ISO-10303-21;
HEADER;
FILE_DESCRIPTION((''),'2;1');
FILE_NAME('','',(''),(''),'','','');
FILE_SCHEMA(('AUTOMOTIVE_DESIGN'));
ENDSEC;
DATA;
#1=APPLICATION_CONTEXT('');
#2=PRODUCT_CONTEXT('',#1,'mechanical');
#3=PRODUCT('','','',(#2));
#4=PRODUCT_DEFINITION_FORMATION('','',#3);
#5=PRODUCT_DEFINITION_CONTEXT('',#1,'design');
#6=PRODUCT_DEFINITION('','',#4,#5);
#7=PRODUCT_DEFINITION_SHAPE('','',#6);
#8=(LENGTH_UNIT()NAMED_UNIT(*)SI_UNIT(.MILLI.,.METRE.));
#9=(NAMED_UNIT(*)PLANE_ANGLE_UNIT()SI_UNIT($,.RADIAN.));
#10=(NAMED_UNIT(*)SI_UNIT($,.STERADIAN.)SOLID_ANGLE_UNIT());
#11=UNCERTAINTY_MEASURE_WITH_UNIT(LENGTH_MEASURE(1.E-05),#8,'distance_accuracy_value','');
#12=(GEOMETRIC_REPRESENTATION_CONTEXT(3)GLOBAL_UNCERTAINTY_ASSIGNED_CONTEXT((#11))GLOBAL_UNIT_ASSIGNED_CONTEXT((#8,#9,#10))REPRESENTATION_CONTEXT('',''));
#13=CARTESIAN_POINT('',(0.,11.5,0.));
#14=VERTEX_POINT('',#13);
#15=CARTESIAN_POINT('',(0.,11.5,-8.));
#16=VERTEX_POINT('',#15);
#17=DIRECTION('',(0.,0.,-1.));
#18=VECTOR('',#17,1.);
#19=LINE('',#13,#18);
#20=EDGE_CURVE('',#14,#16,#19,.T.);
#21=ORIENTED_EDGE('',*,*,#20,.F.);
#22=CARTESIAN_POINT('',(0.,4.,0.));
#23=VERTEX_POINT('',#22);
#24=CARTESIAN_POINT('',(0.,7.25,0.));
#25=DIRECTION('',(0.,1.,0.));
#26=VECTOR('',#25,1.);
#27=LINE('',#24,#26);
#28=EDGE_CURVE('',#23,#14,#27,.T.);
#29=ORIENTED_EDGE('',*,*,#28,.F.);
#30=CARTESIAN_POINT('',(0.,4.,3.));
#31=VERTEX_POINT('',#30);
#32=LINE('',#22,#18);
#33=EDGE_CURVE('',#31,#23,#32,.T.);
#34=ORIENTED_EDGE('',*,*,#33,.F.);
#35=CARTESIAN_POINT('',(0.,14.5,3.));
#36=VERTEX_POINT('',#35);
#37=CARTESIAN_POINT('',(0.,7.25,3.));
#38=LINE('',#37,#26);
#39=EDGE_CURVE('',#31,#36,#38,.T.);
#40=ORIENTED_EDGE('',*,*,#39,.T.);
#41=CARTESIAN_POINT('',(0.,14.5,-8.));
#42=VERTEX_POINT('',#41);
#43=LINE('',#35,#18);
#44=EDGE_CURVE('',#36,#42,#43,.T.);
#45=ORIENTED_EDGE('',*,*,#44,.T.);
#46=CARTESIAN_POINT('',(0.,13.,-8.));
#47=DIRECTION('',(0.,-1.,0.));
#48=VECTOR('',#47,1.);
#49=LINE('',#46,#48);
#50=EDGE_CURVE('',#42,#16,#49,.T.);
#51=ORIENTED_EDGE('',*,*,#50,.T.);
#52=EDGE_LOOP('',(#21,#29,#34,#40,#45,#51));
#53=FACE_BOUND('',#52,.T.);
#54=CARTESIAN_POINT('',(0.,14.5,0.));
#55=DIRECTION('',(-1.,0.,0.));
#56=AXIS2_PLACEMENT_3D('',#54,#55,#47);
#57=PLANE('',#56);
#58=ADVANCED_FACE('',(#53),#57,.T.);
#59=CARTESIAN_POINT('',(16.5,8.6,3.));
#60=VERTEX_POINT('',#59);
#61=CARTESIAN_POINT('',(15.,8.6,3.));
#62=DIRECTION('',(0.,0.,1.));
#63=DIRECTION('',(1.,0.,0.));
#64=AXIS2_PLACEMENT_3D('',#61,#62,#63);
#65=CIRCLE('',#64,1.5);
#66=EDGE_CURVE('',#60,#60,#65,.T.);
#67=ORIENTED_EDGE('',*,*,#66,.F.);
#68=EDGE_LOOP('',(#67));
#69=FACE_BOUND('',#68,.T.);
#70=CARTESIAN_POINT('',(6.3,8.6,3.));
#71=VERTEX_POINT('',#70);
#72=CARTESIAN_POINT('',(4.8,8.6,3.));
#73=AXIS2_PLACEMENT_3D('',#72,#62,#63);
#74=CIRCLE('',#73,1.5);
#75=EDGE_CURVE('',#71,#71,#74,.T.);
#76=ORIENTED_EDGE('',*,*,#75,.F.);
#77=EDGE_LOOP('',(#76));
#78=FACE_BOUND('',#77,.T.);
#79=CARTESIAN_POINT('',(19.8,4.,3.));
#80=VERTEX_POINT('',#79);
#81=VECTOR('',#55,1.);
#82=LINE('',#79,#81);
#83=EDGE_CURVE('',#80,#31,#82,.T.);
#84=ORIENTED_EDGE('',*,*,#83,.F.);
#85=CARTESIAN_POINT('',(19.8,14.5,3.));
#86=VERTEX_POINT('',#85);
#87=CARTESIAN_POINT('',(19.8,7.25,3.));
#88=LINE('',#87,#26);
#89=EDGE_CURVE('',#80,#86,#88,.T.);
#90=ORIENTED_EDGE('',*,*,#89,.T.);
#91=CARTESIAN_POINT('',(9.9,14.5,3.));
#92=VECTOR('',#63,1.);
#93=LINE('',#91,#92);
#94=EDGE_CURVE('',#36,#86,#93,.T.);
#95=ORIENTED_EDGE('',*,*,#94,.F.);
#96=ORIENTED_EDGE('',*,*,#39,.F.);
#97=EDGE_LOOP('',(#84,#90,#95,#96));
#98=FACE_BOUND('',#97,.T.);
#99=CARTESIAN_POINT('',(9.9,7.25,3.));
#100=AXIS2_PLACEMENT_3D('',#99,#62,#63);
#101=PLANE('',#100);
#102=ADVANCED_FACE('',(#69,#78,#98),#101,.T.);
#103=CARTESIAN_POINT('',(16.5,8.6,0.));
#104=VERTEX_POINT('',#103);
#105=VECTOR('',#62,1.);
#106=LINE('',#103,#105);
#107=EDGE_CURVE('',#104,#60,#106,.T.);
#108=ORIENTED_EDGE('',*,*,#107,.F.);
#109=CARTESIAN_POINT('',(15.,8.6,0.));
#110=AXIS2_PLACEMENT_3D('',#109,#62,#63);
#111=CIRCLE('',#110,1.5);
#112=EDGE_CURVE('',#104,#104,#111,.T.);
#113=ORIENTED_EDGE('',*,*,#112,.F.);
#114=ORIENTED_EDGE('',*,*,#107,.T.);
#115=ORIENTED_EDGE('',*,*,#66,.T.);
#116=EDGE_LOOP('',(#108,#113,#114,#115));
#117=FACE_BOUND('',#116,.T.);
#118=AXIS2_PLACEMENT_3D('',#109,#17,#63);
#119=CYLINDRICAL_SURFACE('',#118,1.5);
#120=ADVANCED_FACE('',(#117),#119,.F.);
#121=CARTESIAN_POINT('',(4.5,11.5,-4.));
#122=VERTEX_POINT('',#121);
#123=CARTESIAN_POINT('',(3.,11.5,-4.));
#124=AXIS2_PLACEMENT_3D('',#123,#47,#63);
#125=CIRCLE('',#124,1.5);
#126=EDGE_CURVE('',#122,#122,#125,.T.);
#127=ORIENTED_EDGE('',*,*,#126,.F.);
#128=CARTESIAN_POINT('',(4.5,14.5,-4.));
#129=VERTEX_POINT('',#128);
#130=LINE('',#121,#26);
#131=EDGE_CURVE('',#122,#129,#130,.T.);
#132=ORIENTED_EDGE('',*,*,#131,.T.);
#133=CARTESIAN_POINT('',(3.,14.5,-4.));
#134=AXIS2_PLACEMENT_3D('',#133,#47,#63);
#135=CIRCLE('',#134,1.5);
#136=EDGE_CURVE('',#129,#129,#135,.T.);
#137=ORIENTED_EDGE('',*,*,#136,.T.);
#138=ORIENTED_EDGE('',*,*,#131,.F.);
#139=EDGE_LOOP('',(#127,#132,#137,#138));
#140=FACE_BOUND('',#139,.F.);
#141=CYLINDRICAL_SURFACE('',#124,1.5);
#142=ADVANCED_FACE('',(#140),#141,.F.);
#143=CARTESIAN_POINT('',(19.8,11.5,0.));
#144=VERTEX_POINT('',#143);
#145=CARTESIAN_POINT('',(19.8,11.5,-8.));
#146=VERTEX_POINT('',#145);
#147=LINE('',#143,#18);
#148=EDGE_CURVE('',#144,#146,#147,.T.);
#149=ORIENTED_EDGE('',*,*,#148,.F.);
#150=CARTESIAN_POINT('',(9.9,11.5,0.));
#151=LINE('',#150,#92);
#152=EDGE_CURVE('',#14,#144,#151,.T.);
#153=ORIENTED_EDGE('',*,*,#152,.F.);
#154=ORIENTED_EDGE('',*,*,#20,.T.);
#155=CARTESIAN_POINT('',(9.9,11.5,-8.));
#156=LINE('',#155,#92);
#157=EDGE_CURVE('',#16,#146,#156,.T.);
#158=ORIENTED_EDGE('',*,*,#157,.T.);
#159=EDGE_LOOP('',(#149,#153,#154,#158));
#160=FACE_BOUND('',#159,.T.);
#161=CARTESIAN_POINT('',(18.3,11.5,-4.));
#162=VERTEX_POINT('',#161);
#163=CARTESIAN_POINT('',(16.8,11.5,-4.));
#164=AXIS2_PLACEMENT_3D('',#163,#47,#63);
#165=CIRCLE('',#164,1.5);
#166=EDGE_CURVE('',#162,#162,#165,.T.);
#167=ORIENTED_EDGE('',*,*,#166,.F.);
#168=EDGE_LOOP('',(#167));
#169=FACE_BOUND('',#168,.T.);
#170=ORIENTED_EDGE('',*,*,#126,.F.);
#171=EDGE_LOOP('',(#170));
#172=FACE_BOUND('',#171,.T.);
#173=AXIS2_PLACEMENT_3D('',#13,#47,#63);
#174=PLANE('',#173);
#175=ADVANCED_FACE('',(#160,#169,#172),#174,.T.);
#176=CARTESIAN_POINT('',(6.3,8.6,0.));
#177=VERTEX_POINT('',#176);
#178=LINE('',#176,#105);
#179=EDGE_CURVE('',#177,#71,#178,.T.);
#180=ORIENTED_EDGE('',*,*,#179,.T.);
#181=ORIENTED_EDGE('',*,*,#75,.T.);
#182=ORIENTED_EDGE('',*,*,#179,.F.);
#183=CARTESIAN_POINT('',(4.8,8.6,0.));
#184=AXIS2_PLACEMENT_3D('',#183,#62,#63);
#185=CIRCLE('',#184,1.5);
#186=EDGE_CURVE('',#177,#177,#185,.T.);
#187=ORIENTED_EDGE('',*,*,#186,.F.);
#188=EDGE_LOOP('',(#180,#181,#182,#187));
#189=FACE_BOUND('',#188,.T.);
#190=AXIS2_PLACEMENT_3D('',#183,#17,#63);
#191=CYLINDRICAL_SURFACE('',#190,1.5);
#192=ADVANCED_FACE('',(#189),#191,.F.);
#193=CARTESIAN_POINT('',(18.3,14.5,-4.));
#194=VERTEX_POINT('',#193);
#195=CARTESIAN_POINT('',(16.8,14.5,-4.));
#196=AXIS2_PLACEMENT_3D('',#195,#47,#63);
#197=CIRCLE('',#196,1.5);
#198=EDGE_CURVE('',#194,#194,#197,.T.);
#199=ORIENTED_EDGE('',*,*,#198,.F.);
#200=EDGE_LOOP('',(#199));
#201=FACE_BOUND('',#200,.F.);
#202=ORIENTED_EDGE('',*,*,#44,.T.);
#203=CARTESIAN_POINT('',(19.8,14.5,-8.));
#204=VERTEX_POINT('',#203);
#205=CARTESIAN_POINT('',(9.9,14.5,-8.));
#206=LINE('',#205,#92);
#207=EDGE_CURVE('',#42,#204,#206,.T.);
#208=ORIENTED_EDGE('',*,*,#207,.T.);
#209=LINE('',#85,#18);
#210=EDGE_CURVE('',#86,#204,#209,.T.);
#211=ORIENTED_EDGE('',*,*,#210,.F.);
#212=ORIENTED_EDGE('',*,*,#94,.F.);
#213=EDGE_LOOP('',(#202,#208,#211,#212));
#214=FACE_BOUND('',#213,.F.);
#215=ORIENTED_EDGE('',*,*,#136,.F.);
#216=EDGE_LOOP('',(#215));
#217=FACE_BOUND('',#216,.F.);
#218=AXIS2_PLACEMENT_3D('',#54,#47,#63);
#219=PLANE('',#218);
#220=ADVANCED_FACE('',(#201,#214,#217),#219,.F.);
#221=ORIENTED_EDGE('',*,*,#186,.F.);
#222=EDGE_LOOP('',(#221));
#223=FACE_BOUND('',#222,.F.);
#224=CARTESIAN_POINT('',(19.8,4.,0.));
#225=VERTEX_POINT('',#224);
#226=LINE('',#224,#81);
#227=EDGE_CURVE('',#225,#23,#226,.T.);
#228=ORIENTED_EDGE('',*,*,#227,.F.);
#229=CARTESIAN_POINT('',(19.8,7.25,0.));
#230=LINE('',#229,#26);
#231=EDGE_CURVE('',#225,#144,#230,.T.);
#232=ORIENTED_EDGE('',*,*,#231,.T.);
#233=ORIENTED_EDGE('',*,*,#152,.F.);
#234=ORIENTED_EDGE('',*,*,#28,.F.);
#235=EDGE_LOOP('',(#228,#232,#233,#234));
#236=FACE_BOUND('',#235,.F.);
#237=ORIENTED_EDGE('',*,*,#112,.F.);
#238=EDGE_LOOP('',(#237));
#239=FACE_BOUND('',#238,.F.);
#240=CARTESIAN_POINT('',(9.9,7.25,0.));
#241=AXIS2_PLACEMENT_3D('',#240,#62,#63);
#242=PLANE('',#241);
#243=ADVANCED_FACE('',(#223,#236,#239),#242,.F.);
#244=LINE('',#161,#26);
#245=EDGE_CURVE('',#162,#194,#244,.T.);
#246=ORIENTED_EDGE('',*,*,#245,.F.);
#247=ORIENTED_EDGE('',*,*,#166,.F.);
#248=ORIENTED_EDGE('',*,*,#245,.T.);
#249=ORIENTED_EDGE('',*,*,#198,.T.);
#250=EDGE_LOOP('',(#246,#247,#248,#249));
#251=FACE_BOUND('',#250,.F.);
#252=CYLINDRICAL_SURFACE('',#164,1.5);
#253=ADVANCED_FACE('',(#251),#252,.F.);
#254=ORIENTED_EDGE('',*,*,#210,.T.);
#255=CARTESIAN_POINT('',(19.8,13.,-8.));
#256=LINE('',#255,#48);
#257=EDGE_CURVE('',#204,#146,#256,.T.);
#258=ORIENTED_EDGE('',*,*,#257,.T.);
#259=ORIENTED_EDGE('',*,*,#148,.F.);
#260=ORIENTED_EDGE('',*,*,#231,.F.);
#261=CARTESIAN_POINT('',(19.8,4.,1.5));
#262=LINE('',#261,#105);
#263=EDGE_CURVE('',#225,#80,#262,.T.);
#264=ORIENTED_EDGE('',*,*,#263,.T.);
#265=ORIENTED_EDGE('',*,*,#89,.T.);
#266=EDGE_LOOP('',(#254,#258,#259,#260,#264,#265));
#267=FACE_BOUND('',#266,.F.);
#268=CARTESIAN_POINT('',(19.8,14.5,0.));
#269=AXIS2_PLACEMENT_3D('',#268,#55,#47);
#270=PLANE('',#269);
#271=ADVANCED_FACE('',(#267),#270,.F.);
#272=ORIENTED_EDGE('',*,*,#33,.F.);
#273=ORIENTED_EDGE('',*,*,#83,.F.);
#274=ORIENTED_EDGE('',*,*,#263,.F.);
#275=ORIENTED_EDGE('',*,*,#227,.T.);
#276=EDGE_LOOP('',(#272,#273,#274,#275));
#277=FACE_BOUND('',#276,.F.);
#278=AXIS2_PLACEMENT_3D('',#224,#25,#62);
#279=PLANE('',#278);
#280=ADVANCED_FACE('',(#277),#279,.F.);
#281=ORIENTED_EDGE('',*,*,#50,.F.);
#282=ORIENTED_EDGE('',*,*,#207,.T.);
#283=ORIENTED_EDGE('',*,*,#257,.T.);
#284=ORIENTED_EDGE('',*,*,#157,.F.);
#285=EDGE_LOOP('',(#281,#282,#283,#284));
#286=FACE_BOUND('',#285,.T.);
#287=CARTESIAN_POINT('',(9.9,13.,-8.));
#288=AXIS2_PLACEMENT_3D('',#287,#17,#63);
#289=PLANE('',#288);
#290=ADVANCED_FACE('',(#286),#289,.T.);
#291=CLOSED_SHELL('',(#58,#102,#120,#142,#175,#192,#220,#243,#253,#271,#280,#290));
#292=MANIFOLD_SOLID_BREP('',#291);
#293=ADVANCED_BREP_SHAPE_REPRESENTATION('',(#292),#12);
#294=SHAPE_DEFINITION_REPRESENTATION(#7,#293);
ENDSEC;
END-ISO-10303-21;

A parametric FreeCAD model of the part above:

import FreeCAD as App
import Part
import Sketcher
from FreeCAD import Vector


def add_polygon(sketch, points):
    """Adds a closed chain of lines whose ends are joined by coincident constraints."""
    first, n = sketch.GeometryCount, len(points)
    for a, b in zip(points, points[1:] + points[:1]):
        sketch.addGeometry(Part.LineSegment(App.Vector(*a, 0), App.Vector(*b, 0)), False)
    for i in range(n):
        sketch.addConstraint(Sketcher.Constraint("Coincident", first + i, 2, first + (i + 1) % n, 1))

doc = App.newDocument("Part")
body = doc.addObject("PartDesign::Body", "Body")

# Sketch on XY plane
sketch1 = doc.addObject("Sketcher::SketchObject", "Sketch")
body.addObject(sketch1)
sketch1.AttachmentSupport = (doc.XY_Plane, [""])
sketch1.MapMode = "FlatFace"
add_polygon(sketch1, [(0, 14.5), (0, 0), (19.8, 0), (19.8, 14.5)])  # lines 0-3
sketch1.addGeometry(Part.Circle(Vector(4.8, 8.6, 0), Vector(0, 0, 1), 1.5), False)  # 4
sketch1.addGeometry(Part.Circle(Vector(15, 8.6, 0), Vector(0, 0, 1), 1.5), False)  # 5
sketch1.addConstraint(Sketcher.Constraint("Vertical", 0))
sketch1.addConstraint(Sketcher.Constraint("Horizontal", 1))
sketch1.addConstraint(Sketcher.Constraint("Vertical", 2))
sketch1.addConstraint(Sketcher.Constraint("Horizontal", 3))
sketch1.addConstraint(Sketcher.Constraint("Coincident", 0, 2, -1, 1))
sketch1.addConstraint(Sketcher.Constraint("Equal", 4, 5))
sketch1.addConstraint(Sketcher.Constraint("Horizontal", 4, 3, 5, 3))
sketch1.addConstraint(Sketcher.Constraint("Diameter", 4, 3.0))
sketch1.addConstraint(Sketcher.Constraint("DistanceX", 1, 1, 1, 2, 19.8))
sketch1.addConstraint(Sketcher.Constraint("DistanceY", 0, 2, 0, 1, 14.5))
sketch1.addConstraint(Sketcher.Constraint("DistanceX", -1, 1, 5, 3, 15.0))
sketch1.addConstraint(Sketcher.Constraint("DistanceX", 4, 3, 1, 2, 15.0))
sketch1.addConstraint(Sketcher.Constraint("DistanceY", -1, 1, 4, 3, 8.6))
pad1 = doc.addObject("PartDesign::Pad", "Pad")
body.addObject(pad1)
pad1.Profile = sketch1
pad1.Length = 3

# Sketch on XY plane
sketch2 = doc.addObject("Sketcher::SketchObject", "Sketch001")
body.addObject(sketch2)
sketch2.AttachmentSupport = (doc.XY_Plane, [""])
sketch2.MapMode = "FlatFace"
add_polygon(sketch2, [(0, 11.5), (0, 14.5), (19.8, 14.5), (19.8, 11.5)])  # lines 0-3
sketch2.addConstraint(Sketcher.Constraint("Vertical", 0))
sketch2.addConstraint(Sketcher.Constraint("Horizontal", 1))
sketch2.addConstraint(Sketcher.Constraint("Vertical", 2))
sketch2.addConstraint(Sketcher.Constraint("Horizontal", 3))
sketch2.addConstraint(Sketcher.Constraint("PointOnObject", 0, 2, -2))
sketch2.addConstraint(Sketcher.Constraint("DistanceY", 0, 1, 0, 2, 3.0))
sketch2.addConstraint(Sketcher.Constraint("DistanceX", 1, 1, 1, 2, 19.8))
sketch2.addConstraint(Sketcher.Constraint("DistanceY", -1, 1, 0, 2, 14.5))
pad2 = doc.addObject("PartDesign::Pad", "Pad001")
body.addObject(pad2)
pad2.Profile = sketch2
pad2.Length = 8
pad2.Reversed = True

# Sketch on XZ plane
sketch3 = doc.addObject("Sketcher::SketchObject", "Sketch002")
body.addObject(sketch3)
sketch3.AttachmentSupport = (doc.XZ_Plane, [""])
sketch3.MapMode = "FlatFace"
sketch3.AttachmentOffset = App.Placement(Vector(0, 0, -11.5), App.Rotation())
sketch3.addGeometry(Part.Circle(Vector(3, -4, 0), Vector(0, 0, 1), 1.5), False)
sketch3.addGeometry(Part.Circle(Vector(16.8, -4, 0), Vector(0, 0, 1), 1.5), False)
sketch3.addConstraint(Sketcher.Constraint("Equal", 0, 1))
sketch3.addConstraint(Sketcher.Constraint("Horizontal", 0, 3, 1, 3))
sketch3.addConstraint(Sketcher.Constraint("Diameter", 0, 3.0))
sketch3.addConstraint(Sketcher.Constraint("DistanceX", -1, 1, 0, 3, 3.0))
sketch3.addConstraint(Sketcher.Constraint("DistanceY", 0, 3, -1, 1, 4.0))
sketch3.addConstraint(Sketcher.Constraint("DistanceX", -1, 1, 1, 3, 16.8))
pocket1 = doc.addObject("PartDesign::Pocket", "Pocket")
body.addObject(pocket1)
pocket1.Profile = sketch3
pocket1.Type = "ThroughAll"

# Sketch on YZ plane
sketch4 = doc.addObject("Sketcher::SketchObject", "Sketch003")
body.addObject(sketch4)
sketch4.AttachmentSupport = (doc.YZ_Plane, [""])
sketch4.MapMode = "FlatFace"
sketch4.AttachmentOffset = App.Placement(Vector(0, 0, 19.8), App.Rotation())
add_polygon(sketch4, [(0, 3), (0, 0), (4, 0), (4, 3)])  # lines 0-3
sketch4.addConstraint(Sketcher.Constraint("Vertical", 0))
sketch4.addConstraint(Sketcher.Constraint("Horizontal", 1))
sketch4.addConstraint(Sketcher.Constraint("Vertical", 2))
sketch4.addConstraint(Sketcher.Constraint("Horizontal", 3))
sketch4.addConstraint(Sketcher.Constraint("Coincident", 0, 2, -1, 1))
sketch4.addConstraint(Sketcher.Constraint("DistanceX", 1, 1, 1, 2, 4.0))
sketch4.addConstraint(Sketcher.Constraint("DistanceY", 0, 2, 0, 1, 3.0))
pocket2 = doc.addObject("PartDesign::Pocket", "Pocket001")
body.addObject(pocket2)
pocket2.Profile = sketch4
pocket2.Type = "ThroughAll"

doc.recompute()
